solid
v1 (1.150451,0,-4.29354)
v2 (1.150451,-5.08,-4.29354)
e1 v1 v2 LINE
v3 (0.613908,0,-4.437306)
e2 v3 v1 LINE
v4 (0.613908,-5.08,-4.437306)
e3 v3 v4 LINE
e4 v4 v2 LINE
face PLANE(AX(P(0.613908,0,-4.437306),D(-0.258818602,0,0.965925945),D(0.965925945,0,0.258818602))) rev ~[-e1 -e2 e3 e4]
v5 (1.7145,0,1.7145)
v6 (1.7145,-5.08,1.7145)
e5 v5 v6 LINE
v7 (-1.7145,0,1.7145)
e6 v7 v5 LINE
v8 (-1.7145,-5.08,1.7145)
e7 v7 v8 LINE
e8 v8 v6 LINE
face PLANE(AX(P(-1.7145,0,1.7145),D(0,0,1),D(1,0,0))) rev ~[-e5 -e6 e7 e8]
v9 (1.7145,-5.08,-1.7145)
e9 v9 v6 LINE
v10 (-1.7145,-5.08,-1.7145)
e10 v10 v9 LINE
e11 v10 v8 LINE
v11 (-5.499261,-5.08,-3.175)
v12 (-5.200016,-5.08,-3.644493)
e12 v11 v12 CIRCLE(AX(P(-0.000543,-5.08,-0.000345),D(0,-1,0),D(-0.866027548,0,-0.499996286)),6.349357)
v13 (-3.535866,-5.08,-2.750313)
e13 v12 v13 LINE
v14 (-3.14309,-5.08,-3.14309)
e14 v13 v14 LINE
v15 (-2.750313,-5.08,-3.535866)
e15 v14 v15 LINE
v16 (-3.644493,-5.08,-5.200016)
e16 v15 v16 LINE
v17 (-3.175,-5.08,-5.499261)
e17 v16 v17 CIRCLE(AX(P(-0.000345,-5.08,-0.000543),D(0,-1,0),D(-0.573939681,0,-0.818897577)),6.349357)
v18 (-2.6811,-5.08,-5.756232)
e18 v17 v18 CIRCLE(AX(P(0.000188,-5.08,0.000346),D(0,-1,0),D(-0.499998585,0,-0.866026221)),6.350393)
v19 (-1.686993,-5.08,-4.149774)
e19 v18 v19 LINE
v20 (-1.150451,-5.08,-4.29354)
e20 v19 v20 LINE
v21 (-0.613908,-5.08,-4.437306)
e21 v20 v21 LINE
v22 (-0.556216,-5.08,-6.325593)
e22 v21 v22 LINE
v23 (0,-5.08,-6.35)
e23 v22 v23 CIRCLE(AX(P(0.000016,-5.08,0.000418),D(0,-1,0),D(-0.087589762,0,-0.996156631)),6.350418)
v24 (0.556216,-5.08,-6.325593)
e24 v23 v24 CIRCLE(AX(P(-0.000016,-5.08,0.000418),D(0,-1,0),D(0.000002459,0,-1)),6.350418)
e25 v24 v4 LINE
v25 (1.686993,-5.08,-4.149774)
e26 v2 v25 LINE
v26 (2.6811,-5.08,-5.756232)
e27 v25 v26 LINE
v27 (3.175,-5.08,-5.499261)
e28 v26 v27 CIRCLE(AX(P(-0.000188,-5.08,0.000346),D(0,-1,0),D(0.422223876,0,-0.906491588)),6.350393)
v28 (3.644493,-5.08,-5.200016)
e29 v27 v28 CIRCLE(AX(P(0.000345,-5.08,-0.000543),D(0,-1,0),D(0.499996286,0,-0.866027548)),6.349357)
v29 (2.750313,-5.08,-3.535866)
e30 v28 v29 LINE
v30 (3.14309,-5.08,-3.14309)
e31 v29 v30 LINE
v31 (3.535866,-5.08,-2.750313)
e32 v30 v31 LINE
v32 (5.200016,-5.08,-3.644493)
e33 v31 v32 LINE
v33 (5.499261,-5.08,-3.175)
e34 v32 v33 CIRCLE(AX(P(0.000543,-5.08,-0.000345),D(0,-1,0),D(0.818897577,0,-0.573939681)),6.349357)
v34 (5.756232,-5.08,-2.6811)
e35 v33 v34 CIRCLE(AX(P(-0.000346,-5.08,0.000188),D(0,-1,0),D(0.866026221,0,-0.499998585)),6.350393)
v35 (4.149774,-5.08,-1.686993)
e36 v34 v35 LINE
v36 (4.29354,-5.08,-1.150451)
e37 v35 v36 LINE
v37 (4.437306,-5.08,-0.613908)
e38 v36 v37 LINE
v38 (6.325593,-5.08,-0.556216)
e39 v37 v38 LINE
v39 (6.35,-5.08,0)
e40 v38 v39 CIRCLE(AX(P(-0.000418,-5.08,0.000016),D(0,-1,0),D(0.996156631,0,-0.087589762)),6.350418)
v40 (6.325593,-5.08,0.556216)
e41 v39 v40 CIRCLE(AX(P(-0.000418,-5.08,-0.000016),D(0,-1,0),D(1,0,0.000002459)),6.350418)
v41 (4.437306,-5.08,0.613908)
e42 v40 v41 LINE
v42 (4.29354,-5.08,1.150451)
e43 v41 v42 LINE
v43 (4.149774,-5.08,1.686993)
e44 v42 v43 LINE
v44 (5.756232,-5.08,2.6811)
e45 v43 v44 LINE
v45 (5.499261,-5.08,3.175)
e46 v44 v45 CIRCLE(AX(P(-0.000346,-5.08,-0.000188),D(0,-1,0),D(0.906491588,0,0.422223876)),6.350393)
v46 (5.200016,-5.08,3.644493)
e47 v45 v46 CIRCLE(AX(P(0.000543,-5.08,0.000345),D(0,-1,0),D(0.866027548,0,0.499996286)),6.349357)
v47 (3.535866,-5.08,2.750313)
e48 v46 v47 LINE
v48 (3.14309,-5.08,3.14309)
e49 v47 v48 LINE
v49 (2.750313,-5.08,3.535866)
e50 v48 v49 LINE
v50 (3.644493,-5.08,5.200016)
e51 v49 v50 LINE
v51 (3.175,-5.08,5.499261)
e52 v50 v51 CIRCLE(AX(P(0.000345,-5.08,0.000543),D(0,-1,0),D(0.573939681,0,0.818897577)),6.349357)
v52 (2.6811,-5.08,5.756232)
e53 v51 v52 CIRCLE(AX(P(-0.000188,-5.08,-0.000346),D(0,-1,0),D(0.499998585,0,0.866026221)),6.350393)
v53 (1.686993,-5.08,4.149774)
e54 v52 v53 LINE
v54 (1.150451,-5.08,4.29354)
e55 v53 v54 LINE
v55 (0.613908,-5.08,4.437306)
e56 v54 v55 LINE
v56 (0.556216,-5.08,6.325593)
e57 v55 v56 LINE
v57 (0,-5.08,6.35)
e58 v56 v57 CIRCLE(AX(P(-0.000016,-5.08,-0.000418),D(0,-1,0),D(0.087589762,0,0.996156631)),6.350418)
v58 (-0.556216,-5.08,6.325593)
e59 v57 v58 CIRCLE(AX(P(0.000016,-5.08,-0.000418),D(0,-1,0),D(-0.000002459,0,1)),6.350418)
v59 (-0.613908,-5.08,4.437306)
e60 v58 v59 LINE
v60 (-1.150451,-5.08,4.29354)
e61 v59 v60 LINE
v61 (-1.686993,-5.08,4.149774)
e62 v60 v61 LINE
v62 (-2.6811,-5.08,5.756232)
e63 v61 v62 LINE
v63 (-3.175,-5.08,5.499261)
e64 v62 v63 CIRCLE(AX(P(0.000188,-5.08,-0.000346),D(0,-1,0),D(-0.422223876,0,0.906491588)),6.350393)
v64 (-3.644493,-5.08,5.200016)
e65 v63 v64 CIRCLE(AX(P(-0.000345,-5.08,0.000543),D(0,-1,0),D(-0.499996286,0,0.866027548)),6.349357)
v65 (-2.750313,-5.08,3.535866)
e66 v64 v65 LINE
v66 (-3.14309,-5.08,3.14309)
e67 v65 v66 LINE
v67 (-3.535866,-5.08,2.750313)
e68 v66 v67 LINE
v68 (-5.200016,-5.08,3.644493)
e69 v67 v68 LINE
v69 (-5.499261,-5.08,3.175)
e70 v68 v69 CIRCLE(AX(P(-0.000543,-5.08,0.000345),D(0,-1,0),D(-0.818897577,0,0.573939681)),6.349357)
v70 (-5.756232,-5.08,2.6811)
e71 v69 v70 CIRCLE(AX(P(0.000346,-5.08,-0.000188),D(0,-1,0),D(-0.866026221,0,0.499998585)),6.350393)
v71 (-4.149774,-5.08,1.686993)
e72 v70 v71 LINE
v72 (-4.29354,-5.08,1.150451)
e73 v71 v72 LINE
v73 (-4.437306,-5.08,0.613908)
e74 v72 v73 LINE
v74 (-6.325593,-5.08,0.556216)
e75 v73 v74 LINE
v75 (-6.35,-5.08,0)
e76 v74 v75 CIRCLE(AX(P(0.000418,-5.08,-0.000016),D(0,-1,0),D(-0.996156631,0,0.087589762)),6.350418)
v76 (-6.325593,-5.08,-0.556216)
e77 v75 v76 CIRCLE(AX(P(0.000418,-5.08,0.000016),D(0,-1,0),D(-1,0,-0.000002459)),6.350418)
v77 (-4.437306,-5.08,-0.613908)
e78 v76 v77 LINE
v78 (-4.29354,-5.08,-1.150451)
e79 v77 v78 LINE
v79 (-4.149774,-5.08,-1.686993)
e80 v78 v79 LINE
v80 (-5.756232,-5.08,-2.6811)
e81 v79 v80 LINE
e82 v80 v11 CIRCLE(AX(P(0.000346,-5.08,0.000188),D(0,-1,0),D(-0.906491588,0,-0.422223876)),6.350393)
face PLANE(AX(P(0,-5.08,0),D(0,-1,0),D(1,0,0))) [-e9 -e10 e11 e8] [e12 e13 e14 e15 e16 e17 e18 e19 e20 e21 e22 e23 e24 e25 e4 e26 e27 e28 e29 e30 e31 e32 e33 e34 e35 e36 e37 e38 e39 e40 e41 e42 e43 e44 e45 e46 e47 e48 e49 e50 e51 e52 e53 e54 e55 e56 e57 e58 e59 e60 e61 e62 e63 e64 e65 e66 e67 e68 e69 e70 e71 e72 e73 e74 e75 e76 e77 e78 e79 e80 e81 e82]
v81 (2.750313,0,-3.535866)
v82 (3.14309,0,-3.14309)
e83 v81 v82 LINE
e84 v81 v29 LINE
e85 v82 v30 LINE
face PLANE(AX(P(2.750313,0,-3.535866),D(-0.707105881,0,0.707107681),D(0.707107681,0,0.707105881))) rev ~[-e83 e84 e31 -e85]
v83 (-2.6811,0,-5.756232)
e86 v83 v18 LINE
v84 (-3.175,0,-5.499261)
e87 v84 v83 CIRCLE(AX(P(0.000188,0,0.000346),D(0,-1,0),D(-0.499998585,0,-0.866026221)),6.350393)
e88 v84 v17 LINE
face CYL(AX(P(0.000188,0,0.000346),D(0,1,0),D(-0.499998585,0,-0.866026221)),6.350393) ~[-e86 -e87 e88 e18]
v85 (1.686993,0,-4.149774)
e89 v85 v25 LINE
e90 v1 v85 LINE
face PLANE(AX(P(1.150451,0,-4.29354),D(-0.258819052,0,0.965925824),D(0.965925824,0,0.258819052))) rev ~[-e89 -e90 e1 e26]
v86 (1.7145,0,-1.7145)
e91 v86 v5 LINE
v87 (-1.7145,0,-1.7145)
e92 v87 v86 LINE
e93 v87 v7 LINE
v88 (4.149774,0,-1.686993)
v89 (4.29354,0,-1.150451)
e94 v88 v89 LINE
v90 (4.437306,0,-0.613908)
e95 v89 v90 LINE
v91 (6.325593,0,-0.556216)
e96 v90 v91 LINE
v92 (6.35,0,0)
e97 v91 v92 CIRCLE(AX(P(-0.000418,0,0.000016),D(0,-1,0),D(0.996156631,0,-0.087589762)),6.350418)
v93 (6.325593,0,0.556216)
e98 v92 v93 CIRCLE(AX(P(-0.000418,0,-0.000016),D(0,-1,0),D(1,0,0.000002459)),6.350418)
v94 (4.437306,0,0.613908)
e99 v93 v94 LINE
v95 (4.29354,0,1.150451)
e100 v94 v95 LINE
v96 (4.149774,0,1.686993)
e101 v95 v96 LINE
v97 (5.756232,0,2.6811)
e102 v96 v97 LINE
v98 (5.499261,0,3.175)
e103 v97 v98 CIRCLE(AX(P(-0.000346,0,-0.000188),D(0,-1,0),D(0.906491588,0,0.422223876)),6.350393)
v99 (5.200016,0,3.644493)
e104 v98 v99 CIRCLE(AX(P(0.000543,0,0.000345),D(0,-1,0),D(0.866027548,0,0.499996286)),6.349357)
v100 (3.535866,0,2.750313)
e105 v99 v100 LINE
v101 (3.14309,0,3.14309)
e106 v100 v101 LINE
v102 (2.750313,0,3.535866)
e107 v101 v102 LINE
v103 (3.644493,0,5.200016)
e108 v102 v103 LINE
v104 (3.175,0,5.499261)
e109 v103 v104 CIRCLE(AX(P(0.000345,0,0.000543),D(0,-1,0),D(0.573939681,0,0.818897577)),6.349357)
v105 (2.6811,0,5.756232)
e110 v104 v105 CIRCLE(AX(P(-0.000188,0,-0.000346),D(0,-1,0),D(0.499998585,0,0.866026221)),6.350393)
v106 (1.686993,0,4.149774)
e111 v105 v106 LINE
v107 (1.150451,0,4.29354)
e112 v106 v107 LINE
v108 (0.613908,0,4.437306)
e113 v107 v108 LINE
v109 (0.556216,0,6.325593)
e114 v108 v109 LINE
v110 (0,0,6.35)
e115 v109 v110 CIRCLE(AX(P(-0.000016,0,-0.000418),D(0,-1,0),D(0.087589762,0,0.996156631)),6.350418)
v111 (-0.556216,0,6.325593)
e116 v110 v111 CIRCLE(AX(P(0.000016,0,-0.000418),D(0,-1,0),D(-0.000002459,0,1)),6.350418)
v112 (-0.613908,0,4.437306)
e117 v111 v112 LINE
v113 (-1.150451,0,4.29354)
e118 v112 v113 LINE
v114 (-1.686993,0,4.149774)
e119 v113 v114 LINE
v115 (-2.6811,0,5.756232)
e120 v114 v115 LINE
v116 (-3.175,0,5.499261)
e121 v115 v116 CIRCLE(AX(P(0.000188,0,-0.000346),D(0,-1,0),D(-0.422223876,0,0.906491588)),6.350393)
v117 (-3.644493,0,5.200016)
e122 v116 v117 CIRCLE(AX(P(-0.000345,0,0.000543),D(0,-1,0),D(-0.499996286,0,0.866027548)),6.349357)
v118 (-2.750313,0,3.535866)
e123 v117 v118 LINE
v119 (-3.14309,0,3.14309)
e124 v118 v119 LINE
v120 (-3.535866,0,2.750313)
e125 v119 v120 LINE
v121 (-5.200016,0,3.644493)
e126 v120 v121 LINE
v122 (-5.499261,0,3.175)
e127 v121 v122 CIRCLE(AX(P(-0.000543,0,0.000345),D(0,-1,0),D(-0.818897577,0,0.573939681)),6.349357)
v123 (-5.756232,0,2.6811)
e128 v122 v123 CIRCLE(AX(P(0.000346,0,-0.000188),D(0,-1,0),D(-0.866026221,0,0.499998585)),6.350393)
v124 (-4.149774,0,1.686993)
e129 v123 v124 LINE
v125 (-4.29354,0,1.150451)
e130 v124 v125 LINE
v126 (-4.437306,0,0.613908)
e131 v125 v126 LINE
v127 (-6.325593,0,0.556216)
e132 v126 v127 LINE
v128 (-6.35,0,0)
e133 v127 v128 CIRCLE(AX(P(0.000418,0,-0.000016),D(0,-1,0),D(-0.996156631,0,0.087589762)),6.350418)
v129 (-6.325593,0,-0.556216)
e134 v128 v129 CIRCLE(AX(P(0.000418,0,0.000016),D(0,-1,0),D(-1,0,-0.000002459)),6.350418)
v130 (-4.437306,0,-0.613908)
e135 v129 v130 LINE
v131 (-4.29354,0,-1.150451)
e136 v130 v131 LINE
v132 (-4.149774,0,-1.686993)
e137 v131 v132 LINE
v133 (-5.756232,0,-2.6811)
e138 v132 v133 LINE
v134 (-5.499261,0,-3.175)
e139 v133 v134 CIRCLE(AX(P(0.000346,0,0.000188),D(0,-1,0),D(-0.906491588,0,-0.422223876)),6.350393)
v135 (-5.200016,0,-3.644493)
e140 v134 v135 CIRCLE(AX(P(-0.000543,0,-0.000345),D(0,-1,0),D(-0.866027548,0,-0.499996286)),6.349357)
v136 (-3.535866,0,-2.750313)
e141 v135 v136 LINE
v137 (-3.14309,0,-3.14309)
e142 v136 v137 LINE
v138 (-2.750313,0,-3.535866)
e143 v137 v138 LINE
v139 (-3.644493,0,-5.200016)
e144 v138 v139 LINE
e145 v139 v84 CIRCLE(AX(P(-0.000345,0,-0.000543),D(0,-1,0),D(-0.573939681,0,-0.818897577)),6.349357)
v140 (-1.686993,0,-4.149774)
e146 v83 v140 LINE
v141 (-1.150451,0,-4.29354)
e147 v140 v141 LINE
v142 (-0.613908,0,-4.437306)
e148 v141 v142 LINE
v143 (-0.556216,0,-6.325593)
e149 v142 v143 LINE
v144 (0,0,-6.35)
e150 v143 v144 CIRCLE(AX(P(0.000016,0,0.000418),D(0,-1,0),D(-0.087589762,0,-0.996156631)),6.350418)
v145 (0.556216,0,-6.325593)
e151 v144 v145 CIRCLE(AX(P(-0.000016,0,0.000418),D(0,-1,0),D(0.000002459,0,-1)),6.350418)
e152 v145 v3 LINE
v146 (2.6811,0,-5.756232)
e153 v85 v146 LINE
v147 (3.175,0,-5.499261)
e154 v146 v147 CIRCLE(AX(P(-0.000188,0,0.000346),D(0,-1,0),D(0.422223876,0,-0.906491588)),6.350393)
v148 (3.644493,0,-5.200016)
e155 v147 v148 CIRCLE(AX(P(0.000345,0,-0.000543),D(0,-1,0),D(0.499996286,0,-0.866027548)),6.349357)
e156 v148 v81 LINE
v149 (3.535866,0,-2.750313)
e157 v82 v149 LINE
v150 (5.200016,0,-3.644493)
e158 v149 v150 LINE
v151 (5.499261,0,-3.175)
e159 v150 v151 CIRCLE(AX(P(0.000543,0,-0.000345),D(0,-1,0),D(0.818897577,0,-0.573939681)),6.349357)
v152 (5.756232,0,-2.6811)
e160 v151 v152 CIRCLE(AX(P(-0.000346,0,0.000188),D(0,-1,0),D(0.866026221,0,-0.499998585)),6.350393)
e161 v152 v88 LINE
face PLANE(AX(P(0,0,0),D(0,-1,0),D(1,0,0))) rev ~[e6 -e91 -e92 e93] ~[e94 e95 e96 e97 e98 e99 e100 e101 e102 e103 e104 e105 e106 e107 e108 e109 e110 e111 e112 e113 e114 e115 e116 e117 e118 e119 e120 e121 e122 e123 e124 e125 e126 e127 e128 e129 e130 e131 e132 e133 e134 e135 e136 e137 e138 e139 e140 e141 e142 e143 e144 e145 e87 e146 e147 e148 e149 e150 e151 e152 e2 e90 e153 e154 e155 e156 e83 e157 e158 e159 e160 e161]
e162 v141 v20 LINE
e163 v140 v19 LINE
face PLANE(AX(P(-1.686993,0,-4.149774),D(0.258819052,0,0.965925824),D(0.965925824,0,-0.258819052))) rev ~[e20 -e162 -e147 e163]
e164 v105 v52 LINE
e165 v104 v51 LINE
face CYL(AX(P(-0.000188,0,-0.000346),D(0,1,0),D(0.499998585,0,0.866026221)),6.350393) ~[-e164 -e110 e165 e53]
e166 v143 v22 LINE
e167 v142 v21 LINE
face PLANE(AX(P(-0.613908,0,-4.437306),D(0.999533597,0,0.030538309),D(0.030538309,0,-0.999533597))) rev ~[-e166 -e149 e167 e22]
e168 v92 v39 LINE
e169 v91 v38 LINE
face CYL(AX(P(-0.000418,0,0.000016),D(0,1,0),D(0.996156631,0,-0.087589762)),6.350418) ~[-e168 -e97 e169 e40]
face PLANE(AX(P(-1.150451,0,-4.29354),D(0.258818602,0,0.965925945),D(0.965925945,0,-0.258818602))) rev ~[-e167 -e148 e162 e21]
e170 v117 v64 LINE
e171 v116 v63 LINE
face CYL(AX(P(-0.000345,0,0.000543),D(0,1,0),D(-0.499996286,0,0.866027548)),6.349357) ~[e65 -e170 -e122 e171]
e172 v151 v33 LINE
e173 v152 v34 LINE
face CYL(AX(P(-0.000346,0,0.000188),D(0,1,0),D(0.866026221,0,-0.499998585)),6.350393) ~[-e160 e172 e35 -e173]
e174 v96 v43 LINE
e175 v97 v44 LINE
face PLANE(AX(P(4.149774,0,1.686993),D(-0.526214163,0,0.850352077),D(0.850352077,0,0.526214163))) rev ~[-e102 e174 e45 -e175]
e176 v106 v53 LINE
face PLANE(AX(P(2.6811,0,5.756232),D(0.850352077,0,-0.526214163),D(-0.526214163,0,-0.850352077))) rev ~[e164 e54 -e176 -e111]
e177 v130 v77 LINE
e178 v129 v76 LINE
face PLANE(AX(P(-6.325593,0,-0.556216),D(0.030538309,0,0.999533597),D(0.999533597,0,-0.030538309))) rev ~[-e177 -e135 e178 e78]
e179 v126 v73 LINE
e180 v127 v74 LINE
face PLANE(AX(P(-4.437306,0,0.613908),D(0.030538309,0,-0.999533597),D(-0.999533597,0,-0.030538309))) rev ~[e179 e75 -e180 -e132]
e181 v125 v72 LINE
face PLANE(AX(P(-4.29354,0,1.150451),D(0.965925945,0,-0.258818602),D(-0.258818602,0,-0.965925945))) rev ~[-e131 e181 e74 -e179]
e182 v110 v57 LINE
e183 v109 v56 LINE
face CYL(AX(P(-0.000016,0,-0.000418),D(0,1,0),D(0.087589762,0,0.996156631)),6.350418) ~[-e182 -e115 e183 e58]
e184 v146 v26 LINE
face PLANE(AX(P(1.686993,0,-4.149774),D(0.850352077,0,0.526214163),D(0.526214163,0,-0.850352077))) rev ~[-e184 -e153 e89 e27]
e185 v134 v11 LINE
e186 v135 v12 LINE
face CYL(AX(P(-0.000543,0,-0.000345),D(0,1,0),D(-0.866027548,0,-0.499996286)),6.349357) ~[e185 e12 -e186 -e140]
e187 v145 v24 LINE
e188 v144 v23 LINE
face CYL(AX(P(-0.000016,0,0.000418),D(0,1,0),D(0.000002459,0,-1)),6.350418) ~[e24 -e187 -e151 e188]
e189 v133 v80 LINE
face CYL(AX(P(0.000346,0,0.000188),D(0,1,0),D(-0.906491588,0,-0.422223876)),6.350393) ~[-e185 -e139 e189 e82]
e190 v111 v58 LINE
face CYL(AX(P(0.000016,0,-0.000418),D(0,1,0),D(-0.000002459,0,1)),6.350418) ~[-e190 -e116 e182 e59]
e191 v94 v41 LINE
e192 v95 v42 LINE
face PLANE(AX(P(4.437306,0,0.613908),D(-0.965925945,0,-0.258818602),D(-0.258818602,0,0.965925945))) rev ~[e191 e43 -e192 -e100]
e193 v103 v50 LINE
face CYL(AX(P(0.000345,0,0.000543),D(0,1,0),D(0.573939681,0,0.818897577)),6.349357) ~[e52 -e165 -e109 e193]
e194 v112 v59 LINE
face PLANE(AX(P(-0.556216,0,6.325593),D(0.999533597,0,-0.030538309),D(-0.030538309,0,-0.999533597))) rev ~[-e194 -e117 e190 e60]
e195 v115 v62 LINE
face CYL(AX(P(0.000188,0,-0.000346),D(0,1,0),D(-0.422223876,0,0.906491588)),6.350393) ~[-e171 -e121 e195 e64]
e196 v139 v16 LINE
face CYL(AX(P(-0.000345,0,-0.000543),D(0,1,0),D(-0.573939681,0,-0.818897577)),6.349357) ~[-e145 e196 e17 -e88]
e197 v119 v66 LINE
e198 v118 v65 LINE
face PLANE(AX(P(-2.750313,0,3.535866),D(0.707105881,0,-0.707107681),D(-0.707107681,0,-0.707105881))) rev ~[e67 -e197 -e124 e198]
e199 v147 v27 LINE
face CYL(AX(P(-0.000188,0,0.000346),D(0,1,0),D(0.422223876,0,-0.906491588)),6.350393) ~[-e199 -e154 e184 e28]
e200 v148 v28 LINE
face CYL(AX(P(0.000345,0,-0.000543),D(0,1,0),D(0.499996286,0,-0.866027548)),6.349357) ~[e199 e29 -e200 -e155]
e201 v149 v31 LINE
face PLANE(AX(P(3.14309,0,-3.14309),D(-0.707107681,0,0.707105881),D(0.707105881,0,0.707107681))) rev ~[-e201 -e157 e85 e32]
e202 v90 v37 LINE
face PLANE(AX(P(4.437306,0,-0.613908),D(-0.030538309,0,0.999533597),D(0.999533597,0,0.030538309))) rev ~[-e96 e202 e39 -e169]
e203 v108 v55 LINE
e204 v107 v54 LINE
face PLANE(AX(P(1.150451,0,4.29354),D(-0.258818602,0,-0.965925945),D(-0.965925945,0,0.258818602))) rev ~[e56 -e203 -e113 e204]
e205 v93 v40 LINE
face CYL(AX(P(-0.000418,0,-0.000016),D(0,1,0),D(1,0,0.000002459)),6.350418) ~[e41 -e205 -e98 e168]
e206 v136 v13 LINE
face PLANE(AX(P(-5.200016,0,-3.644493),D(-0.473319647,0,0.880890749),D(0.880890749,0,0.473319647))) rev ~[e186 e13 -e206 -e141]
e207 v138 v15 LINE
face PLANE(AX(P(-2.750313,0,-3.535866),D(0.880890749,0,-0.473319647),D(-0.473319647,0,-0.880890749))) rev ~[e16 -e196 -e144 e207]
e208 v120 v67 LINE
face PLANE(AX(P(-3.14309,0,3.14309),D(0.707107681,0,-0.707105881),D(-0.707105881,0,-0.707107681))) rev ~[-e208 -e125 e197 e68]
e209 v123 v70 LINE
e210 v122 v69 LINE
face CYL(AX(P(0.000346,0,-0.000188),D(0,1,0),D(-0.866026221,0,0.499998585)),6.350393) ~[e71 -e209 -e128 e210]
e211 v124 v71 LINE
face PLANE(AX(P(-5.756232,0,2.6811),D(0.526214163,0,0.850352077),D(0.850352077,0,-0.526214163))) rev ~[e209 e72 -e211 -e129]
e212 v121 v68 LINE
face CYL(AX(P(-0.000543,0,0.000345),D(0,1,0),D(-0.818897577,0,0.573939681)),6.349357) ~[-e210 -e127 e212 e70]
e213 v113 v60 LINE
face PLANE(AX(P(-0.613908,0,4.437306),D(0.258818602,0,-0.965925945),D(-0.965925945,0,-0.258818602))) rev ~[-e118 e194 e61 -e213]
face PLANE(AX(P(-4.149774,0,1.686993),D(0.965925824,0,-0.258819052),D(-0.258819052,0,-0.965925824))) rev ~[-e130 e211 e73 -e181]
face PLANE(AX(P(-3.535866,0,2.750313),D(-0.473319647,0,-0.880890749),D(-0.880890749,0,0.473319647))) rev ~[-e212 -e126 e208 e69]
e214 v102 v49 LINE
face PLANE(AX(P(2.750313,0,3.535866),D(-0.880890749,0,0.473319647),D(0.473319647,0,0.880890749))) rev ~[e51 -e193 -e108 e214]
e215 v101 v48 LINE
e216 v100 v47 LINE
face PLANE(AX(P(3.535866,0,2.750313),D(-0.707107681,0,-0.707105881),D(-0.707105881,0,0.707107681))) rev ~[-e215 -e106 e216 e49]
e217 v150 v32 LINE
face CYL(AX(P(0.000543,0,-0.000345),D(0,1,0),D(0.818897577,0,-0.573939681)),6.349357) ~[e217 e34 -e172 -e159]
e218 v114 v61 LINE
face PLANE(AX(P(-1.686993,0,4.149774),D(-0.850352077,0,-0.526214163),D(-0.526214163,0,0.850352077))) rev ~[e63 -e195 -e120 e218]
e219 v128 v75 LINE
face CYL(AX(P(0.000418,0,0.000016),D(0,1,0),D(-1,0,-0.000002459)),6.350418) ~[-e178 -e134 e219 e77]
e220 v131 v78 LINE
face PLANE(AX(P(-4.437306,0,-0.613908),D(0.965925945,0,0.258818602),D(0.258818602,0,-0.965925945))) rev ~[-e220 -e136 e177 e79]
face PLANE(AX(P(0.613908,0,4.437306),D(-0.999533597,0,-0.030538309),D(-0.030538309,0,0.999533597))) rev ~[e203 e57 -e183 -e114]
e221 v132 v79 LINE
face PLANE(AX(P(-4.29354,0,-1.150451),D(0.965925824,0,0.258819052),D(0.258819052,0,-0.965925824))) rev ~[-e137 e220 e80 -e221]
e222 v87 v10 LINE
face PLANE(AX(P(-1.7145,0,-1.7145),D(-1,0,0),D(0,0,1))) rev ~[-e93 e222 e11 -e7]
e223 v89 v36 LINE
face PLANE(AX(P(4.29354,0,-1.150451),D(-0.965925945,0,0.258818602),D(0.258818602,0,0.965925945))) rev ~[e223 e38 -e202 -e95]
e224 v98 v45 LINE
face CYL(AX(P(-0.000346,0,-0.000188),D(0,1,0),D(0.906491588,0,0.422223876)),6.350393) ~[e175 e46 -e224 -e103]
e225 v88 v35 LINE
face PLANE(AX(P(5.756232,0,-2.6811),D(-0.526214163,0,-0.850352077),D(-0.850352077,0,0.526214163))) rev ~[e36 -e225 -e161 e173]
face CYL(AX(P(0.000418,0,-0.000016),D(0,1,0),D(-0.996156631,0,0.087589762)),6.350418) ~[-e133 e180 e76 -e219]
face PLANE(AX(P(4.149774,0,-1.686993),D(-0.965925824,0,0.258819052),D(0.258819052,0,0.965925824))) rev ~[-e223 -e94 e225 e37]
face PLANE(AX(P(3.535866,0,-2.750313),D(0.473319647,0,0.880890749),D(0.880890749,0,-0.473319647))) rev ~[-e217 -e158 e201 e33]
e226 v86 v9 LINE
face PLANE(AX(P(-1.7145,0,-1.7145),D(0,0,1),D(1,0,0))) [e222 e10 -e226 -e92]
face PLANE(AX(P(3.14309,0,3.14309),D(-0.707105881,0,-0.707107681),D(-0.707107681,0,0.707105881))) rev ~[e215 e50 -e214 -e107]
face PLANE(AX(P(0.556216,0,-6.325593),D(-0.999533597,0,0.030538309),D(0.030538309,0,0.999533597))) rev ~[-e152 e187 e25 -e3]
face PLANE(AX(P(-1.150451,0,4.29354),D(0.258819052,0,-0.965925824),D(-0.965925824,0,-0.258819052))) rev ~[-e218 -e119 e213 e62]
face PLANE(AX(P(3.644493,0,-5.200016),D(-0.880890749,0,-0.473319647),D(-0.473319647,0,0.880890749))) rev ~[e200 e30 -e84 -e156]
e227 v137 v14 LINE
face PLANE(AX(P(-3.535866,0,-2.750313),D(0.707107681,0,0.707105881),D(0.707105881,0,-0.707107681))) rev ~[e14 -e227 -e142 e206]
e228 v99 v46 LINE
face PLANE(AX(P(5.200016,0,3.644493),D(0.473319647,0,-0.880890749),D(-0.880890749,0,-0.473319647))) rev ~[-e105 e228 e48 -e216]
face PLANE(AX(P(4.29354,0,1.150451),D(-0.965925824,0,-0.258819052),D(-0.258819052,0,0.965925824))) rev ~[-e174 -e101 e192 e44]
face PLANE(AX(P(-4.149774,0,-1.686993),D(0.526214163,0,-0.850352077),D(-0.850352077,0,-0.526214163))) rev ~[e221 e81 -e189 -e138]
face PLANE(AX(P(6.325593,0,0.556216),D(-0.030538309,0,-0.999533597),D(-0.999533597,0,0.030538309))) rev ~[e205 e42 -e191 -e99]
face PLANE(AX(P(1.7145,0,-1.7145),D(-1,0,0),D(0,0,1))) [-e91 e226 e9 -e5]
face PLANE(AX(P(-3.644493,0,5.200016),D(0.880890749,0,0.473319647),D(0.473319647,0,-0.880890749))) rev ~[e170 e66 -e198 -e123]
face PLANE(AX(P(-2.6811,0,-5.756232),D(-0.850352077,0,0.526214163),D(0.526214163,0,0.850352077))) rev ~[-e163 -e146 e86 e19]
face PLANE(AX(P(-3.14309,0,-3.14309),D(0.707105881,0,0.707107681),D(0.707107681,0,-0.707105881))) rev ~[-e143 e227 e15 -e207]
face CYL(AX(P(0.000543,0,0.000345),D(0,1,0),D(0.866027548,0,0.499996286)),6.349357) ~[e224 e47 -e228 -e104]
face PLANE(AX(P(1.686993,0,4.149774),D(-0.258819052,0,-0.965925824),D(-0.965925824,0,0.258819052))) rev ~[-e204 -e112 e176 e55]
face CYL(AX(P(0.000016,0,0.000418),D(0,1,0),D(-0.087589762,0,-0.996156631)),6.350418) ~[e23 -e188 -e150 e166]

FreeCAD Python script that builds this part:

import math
import FreeCAD as App
import Part
import Sketcher
Q = App.Units.Quantity


def add_polygon(sketch, points):
    """Adds a closed chain of lines whose ends are joined by coincident constraints."""
    first, n = sketch.GeometryCount, len(points)
    for a, b in zip(points, points[1:] + points[:1]):
        sketch.addGeometry(Part.LineSegment(App.Vector(*a, 0), App.Vector(*b, 0)), False)
    for i in range(n):
        sketch.addConstraint(Sketcher.Constraint("Coincident", first + i, 2, first + (i + 1) % n, 1))

doc = App.newDocument("Part")
params = doc.addObject("Spreadsheet::Sheet", "Params")
for row, (alias, value) in enumerate([
    ("sketch1_width", "0.135 in"),
    ("pad1_length", "0.2 in"),
], start=1):
    params.set(f"A{row}", alias)
    params.set(f"B{row}", "=" + value)
    params.setAlias(f"B{row}", alias)

body = doc.addObject("PartDesign::Body", "Body")

# Sketch on XZ plane
sketch1 = body.newObject("Sketcher::SketchObject", "Sketch")
sketch1.AttachmentSupport = (doc.getObject("XZ_Plane"), [""])
sketch1.MapMode = "FlatFace"
sketch1.addGeometry(Part.ArcOfCircle(Part.Circle(App.Vector(-0.000418, 0.000016, 0), App.Vector(0, 0, 1), 6.350418), math.radians(-5.024963), math.radians(-0.000141)), False)  # 0
sketch1.addGeometry(Part.ArcOfCircle(Part.Circle(App.Vector(-0.000418, -0.000016, 0), App.Vector(0, 0, 1), 6.350418), math.radians(0.000141), math.radians(5.024963)), False)  # 1
sketch1.addGeometry(Part.LineSegment(App.Vector(6.325593, 0.556216, 0), App.Vector(4.437306, 0.613908, 0)), False)  # 2
sketch1.addGeometry(Part.LineSegment(App.Vector(4.437306, 0.613908, 0), App.Vector(4.29354, 1.150451, 0)), False)  # 3
sketch1.addGeometry(Part.LineSegment(App.Vector(4.29354, 1.150451, 0), App.Vector(4.149774, 1.686993, 0)), False)  # 4
sketch1.addGeometry(Part.LineSegment(App.Vector(4.149774, 1.686993, 0), App.Vector(5.756232, 2.6811, 0)), False)  # 5
sketch1.addGeometry(Part.ArcOfCircle(Part.Circle(App.Vector(-0.000346, -0.000188, 0), App.Vector(0, 0, 1), 6.350393), math.radians(24.97507), math.radians(29.999906)), False)  # 6
sketch1.addGeometry(Part.ArcOfCircle(Part.Circle(App.Vector(0.000543, 0.000345, 0), App.Vector(0, 0, 1), 6.349357), math.radians(29.999754), math.radians(35.025411)), False)  # 7
sketch1.addGeometry(Part.LineSegment(App.Vector(5.200016, 3.644493, 0), App.Vector(3.535866, 2.750313, 0)), False)  # 8
sketch1.addGeometry(Part.LineSegment(App.Vector(3.535866, 2.750313, 0), App.Vector(3.14309, 3.14309, 0)), False)  # 9
sketch1.addGeometry(Part.LineSegment(App.Vector(3.14309, 3.14309, 0), App.Vector(2.750313, 3.535866, 0)), False)  # 10
sketch1.addGeometry(Part.LineSegment(App.Vector(2.750313, 3.535866, 0), App.Vector(3.644493, 5.200016, 0)), False)  # 11
sketch1.addGeometry(Part.ArcOfCircle(Part.Circle(App.Vector(0.000345, 0.000543, 0), App.Vector(0, 0, 1), 6.349357), math.radians(54.974589), math.radians(60.000246)), False)  # 12
sketch1.addGeometry(Part.ArcOfCircle(Part.Circle(App.Vector(-0.000188, -0.000346, 0), App.Vector(0, 0, 1), 6.350393), math.radians(60.000094), math.radians(65.02493)), False)  # 13
sketch1.addGeometry(Part.LineSegment(App.Vector(2.6811, 5.756232, 0), App.Vector(1.686993, 4.149774, 0)), False)  # 14
sketch1.addGeometry(Part.LineSegment(App.Vector(1.686993, 4.149774, 0), App.Vector(1.150451, 4.29354, 0)), False)  # 15
sketch1.addGeometry(Part.LineSegment(App.Vector(1.150451, 4.29354, 0), App.Vector(0.613908, 4.437306, 0)), False)  # 16
sketch1.addGeometry(Part.LineSegment(App.Vector(0.613908, 4.437306, 0), App.Vector(0.556216, 6.325593, 0)), False)  # 17
sketch1.addGeometry(Part.ArcOfCircle(Part.Circle(App.Vector(-0.000016, -0.000418, 0), App.Vector(0, 0, 1), 6.350418), math.radians(84.975037), math.radians(89.999859)), False)  # 18
sketch1.addGeometry(Part.ArcOfCircle(Part.Circle(App.Vector(0.000016, -0.000418, 0), App.Vector(0, 0, 1), 6.350418), math.radians(90.000141), math.radians(95.024963)), False)  # 19
sketch1.addGeometry(Part.LineSegment(App.Vector(-0.556216, 6.325593, 0), App.Vector(-0.613908, 4.437306, 0)), False)  # 20
sketch1.addGeometry(Part.LineSegment(App.Vector(-0.613908, 4.437306, 0), App.Vector(-1.150451, 4.29354, 0)), False)  # 21
sketch1.addGeometry(Part.LineSegment(App.Vector(-1.150451, 4.29354, 0), App.Vector(-1.686993, 4.149774, 0)), False)  # 22
sketch1.addGeometry(Part.LineSegment(App.Vector(-1.686993, 4.149774, 0), App.Vector(-2.6811, 5.756232, 0)), False)  # 23
sketch1.addGeometry(Part.ArcOfCircle(Part.Circle(App.Vector(0.000188, -0.000346, 0), App.Vector(0, 0, 1), 6.350393), math.radians(114.97507), math.radians(119.999906)), False)  # 24
sketch1.addGeometry(Part.ArcOfCircle(Part.Circle(App.Vector(-0.000345, 0.000543, 0), App.Vector(0, 0, 1), 6.349357), math.radians(119.999754), math.radians(125.025411)), False)  # 25
sketch1.addGeometry(Part.LineSegment(App.Vector(-3.644493, 5.200016, 0), App.Vector(-2.750313, 3.535866, 0)), False)  # 26
sketch1.addGeometry(Part.LineSegment(App.Vector(-2.750313, 3.535866, 0), App.Vector(-3.14309, 3.14309, 0)), False)  # 27
sketch1.addGeometry(Part.LineSegment(App.Vector(-3.14309, 3.14309, 0), App.Vector(-3.535866, 2.750313, 0)), False)  # 28
sketch1.addGeometry(Part.LineSegment(App.Vector(-3.535866, 2.750313, 0), App.Vector(-5.200016, 3.644493, 0)), False)  # 29
sketch1.addGeometry(Part.ArcOfCircle(Part.Circle(App.Vector(-0.000543, 0.000345, 0), App.Vector(0, 0, 1), 6.349357), math.radians(144.974589), math.radians(150.000246)), False)  # 30
sketch1.addGeometry(Part.ArcOfCircle(Part.Circle(App.Vector(0.000346, -0.000188, 0), App.Vector(0, 0, 1), 6.350393), math.radians(150.000094), math.radians(155.02493)), False)  # 31
sketch1.addGeometry(Part.LineSegment(App.Vector(-5.756232, 2.6811, 0), App.Vector(-4.149774, 1.686993, 0)), False)  # 32
sketch1.addGeometry(Part.LineSegment(App.Vector(-4.149774, 1.686993, 0), App.Vector(-4.29354, 1.150451, 0)), False)  # 33
sketch1.addGeometry(Part.LineSegment(App.Vector(-4.29354, 1.150451, 0), App.Vector(-4.437306, 0.613908, 0)), False)  # 34
sketch1.addGeometry(Part.LineSegment(App.Vector(-4.437306, 0.613908, 0), App.Vector(-6.325593, 0.556216, 0)), False)  # 35
sketch1.addGeometry(Part.ArcOfCircle(Part.Circle(App.Vector(0.000418, -0.000016, 0), App.Vector(0, 0, 1), 6.350418), math.radians(174.975037), math.radians(179.999859)), False)  # 36
sketch1.addGeometry(Part.ArcOfCircle(Part.Circle(App.Vector(0.000418, 0.000016, 0), App.Vector(0, 0, 1), 6.350418), math.radians(-179.999859), math.radians(-174.975037)), False)  # 37
sketch1.addGeometry(Part.LineSegment(App.Vector(-6.325593, -0.556216, 0), App.Vector(-4.437306, -0.613908, 0)), False)  # 38
sketch1.addGeometry(Part.LineSegment(App.Vector(-4.437306, -0.613908, 0), App.Vector(-4.29354, -1.150451, 0)), False)  # 39
sketch1.addGeometry(Part.LineSegment(App.Vector(-4.29354, -1.150451, 0), App.Vector(-4.149774, -1.686993, 0)), False)  # 40
sketch1.addGeometry(Part.LineSegment(App.Vector(-4.149774, -1.686993, 0), App.Vector(-5.756232, -2.6811, 0)), False)  # 41
sketch1.addGeometry(Part.ArcOfCircle(Part.Circle(App.Vector(0.000346, 0.000188, 0), App.Vector(0, 0, 1), 6.350393), math.radians(-155.02493), math.radians(-150.000094)), False)  # 42
sketch1.addGeometry(Part.ArcOfCircle(Part.Circle(App.Vector(-0.000543, -0.000345, 0), App.Vector(0, 0, 1), 6.349357), math.radians(-150.000246), math.radians(-144.974589)), False)  # 43
sketch1.addGeometry(Part.LineSegment(App.Vector(-5.200016, -3.644493, 0), App.Vector(-3.535866, -2.750313, 0)), False)  # 44
sketch1.addGeometry(Part.LineSegment(App.Vector(-3.535866, -2.750313, 0), App.Vector(-3.14309, -3.14309, 0)), False)  # 45
sketch1.addGeometry(Part.LineSegment(App.Vector(-3.14309, -3.14309, 0), App.Vector(-2.750313, -3.535866, 0)), False)  # 46
sketch1.addGeometry(Part.LineSegment(App.Vector(-2.750313, -3.535866, 0), App.Vector(-3.644493, -5.200016, 0)), False)  # 47
sketch1.addGeometry(Part.ArcOfCircle(Part.Circle(App.Vector(-0.000345, -0.000543, 0), App.Vector(0, 0, 1), 6.349357), math.radians(-125.025411), math.radians(-119.999754)), False)  # 48
sketch1.addGeometry(Part.ArcOfCircle(Part.Circle(App.Vector(0.000188, 0.000346, 0), App.Vector(0, 0, 1), 6.350393), math.radians(-119.999906), math.radians(-114.97507)), False)  # 49
sketch1.addGeometry(Part.LineSegment(App.Vector(-2.6811, -5.756232, 0), App.Vector(-1.686993, -4.149774, 0)), False)  # 50
sketch1.addGeometry(Part.LineSegment(App.Vector(-1.686993, -4.149774, 0), App.Vector(-1.150451, -4.29354, 0)), False)  # 51
sketch1.addGeometry(Part.LineSegment(App.Vector(-1.150451, -4.29354, 0), App.Vector(-0.613908, -4.437306, 0)), False)  # 52
sketch1.addGeometry(Part.LineSegment(App.Vector(-0.613908, -4.437306, 0), App.Vector(-0.556216, -6.325593, 0)), False)  # 53
sketch1.addGeometry(Part.ArcOfCircle(Part.Circle(App.Vector(0.000016, 0.000418, 0), App.Vector(0, 0, 1), 6.350418), math.radians(-95.024963), math.radians(-90.000141)), False)  # 54
sketch1.addGeometry(Part.ArcOfCircle(Part.Circle(App.Vector(-0.000016, 0.000418, 0), App.Vector(0, 0, 1), 6.350418), math.radians(-89.999859), math.radians(-84.975037)), False)  # 55
sketch1.addGeometry(Part.LineSegment(App.Vector(0.556216, -6.325593, 0), App.Vector(0.613908, -4.437306, 0)), False)  # 56
sketch1.addGeometry(Part.LineSegment(App.Vector(0.613908, -4.437306, 0), App.Vector(1.150451, -4.29354, 0)), False)  # 57
sketch1.addGeometry(Part.LineSegment(App.Vector(1.150451, -4.29354, 0), App.Vector(1.686993, -4.149774, 0)), False)  # 58
sketch1.addGeometry(Part.LineSegment(App.Vector(1.686993, -4.149774, 0), App.Vector(2.6811, -5.756232, 0)), False)  # 59
sketch1.addGeometry(Part.ArcOfCircle(Part.Circle(App.Vector(-0.000188, 0.000346, 0), App.Vector(0, 0, 1), 6.350393), math.radians(-65.02493), math.radians(-60.000094)), False)  # 60
sketch1.addGeometry(Part.ArcOfCircle(Part.Circle(App.Vector(0.000345, -0.000543, 0), App.Vector(0, 0, 1), 6.349357), math.radians(-60.000246), math.radians(-54.974589)), False)  # 61
sketch1.addGeometry(Part.LineSegment(App.Vector(3.644493, -5.200016, 0), App.Vector(2.750313, -3.535866, 0)), False)  # 62
sketch1.addGeometry(Part.LineSegment(App.Vector(2.750313, -3.535866, 0), App.Vector(3.14309, -3.14309, 0)), False)  # 63
sketch1.addGeometry(Part.LineSegment(App.Vector(3.14309, -3.14309, 0), App.Vector(3.535866, -2.750313, 0)), False)  # 64
sketch1.addGeometry(Part.LineSegment(App.Vector(3.535866, -2.750313, 0), App.Vector(5.200016, -3.644493, 0)), False)  # 65
sketch1.addGeometry(Part.ArcOfCircle(Part.Circle(App.Vector(0.000543, -0.000345, 0), App.Vector(0, 0, 1), 6.349357), math.radians(-35.025411), math.radians(-29.999754)), False)  # 66
sketch1.addGeometry(Part.ArcOfCircle(Part.Circle(App.Vector(-0.000346, 0.000188, 0), App.Vector(0, 0, 1), 6.350393), math.radians(-29.999906), math.radians(-24.97507)), False)  # 67
sketch1.addGeometry(Part.LineSegment(App.Vector(5.756232, -2.6811, 0), App.Vector(4.149774, -1.686993, 0)), False)  # 68
sketch1.addGeometry(Part.LineSegment(App.Vector(4.149774, -1.686993, 0), App.Vector(4.29354, -1.150451, 0)), False)  # 69
sketch1.addGeometry(Part.LineSegment(App.Vector(4.29354, -1.150451, 0), App.Vector(4.437306, -0.613908, 0)), False)  # 70
sketch1.addGeometry(Part.LineSegment(App.Vector(4.437306, -0.613908, 0), App.Vector(6.325593, -0.556216, 0)), False)  # 71
add_polygon(sketch1, [(1.7145, -1.7145), (-1.7145, -1.7145), (-1.7145, 1.7145), (1.7145, 1.7145)])  # lines 72-75
sketch1.addConstraint(Sketcher.Constraint("Coincident", 0, 2, 1, 1))
sketch1.addConstraint(Sketcher.Constraint("Coincident", 1, 2, 2, 1))
sketch1.addConstraint(Sketcher.Constraint("Coincident", 2, 2, 3, 1))
sketch1.addConstraint(Sketcher.Constraint("Coincident", 3, 2, 4, 1))
sketch1.addConstraint(Sketcher.Constraint("Coincident", 4, 2, 5, 1))
sketch1.addConstraint(Sketcher.Constraint("Coincident", 5, 2, 6, 1))
sketch1.addConstraint(Sketcher.Constraint("Coincident", 6, 2, 7, 1))
sketch1.addConstraint(Sketcher.Constraint("Coincident", 7, 2, 8, 1))
sketch1.addConstraint(Sketcher.Constraint("Coincident", 8, 2, 9, 1))
sketch1.addConstraint(Sketcher.Constraint("Coincident", 9, 2, 10, 1))
sketch1.addConstraint(Sketcher.Constraint("Coincident", 10, 2, 11, 1))
sketch1.addConstraint(Sketcher.Constraint("Coincident", 11, 2, 12, 1))
sketch1.addConstraint(Sketcher.Constraint("Coincident", 12, 2, 13, 1))
sketch1.addConstraint(Sketcher.Constraint("Coincident", 13, 2, 14, 1))
sketch1.addConstraint(Sketcher.Constraint("Coincident", 14, 2, 15, 1))
sketch1.addConstraint(Sketcher.Constraint("Coincident", 15, 2, 16, 1))
sketch1.addConstraint(Sketcher.Constraint("Coincident", 16, 2, 17, 1))
sketch1.addConstraint(Sketcher.Constraint("Coincident", 17, 2, 18, 1))
sketch1.addConstraint(Sketcher.Constraint("Coincident", 18, 2, 19, 1))
sketch1.addConstraint(Sketcher.Constraint("Coincident", 19, 2, 20, 1))
sketch1.addConstraint(Sketcher.Constraint("Coincident", 20, 2, 21, 1))
sketch1.addConstraint(Sketcher.Constraint("Coincident", 21, 2, 22, 1))
sketch1.addConstraint(Sketcher.Constraint("Coincident", 22, 2, 23, 1))
sketch1.addConstraint(Sketcher.Constraint("Coincident", 23, 2, 24, 1))
sketch1.addConstraint(Sketcher.Constraint("Coincident", 24, 2, 25, 1))
sketch1.addConstraint(Sketcher.Constraint("Coincident", 25, 2, 26, 1))
sketch1.addConstraint(Sketcher.Constraint("Coincident", 26, 2, 27, 1))
sketch1.addConstraint(Sketcher.Constraint("Coincident", 27, 2, 28, 1))
sketch1.addConstraint(Sketcher.Constraint("Coincident", 28, 2, 29, 1))
sketch1.addConstraint(Sketcher.Constraint("Coincident", 29, 2, 30, 1))
sketch1.addConstraint(Sketcher.Constraint("Coincident", 30, 2, 31, 1))
sketch1.addConstraint(Sketcher.Constraint("Coincident", 31, 2, 32, 1))
sketch1.addConstraint(Sketcher.Constraint("Coincident", 32, 2, 33, 1))
sketch1.addConstraint(Sketcher.Constraint("Coincident", 33, 2, 34, 1))
sketch1.addConstraint(Sketcher.Constraint("Coincident", 34, 2, 35, 1))
sketch1.addConstraint(Sketcher.Constraint("Coincident", 35, 2, 36, 1))
sketch1.addConstraint(Sketcher.Constraint("Coincident", 36, 2, 37, 1))
sketch1.addConstraint(Sketcher.Constraint("Coincident", 37, 2, 38, 1))
sketch1.addConstraint(Sketcher.Constraint("Coincident", 38, 2, 39, 1))
sketch1.addConstraint(Sketcher.Constraint("Coincident", 39, 2, 40, 1))
sketch1.addConstraint(Sketcher.Constraint("Coincident", 40, 2, 41, 1))
sketch1.addConstraint(Sketcher.Constraint("Coincident", 41, 2, 42, 1))
sketch1.addConstraint(Sketcher.Constraint("Coincident", 42, 2, 43, 1))
sketch1.addConstraint(Sketcher.Constraint("Coincident", 43, 2, 44, 1))
sketch1.addConstraint(Sketcher.Constraint("Coincident", 44, 2, 45, 1))
sketch1.addConstraint(Sketcher.Constraint("Coincident", 45, 2, 46, 1))
sketch1.addConstraint(Sketcher.Constraint("Coincident", 46, 2, 47, 1))
sketch1.addConstraint(Sketcher.Constraint("Coincident", 47, 2, 48, 1))
sketch1.addConstraint(Sketcher.Constraint("Coincident", 48, 2, 49, 1))
sketch1.addConstraint(Sketcher.Constraint("Coincident", 49, 2, 50, 1))
sketch1.addConstraint(Sketcher.Constraint("Coincident", 50, 2, 51, 1))
sketch1.addConstraint(Sketcher.Constraint("Coincident", 51, 2, 52, 1))
sketch1.addConstraint(Sketcher.Constraint("Coincident", 52, 2, 53, 1))
sketch1.addConstraint(Sketcher.Constraint("Coincident", 53, 2, 54, 1))
sketch1.addConstraint(Sketcher.Constraint("Coincident", 54, 2, 55, 1))
sketch1.addConstraint(Sketcher.Constraint("Coincident", 55, 2, 56, 1))
sketch1.addConstraint(Sketcher.Constraint("Coincident", 56, 2, 57, 1))
sketch1.addConstraint(Sketcher.Constraint("Coincident", 57, 2, 58, 1))
sketch1.addConstraint(Sketcher.Constraint("Coincident", 58, 2, 59, 1))
sketch1.addConstraint(Sketcher.Constraint("Coincident", 59, 2, 60, 1))
sketch1.addConstraint(Sketcher.Constraint("Coincident", 60, 2, 61, 1))
sketch1.addConstraint(Sketcher.Constraint("Coincident", 61, 2, 62, 1))
sketch1.addConstraint(Sketcher.Constraint("Coincident", 62, 2, 63, 1))
sketch1.addConstraint(Sketcher.Constraint("Coincident", 63, 2, 64, 1))
sketch1.addConstraint(Sketcher.Constraint("Coincident", 64, 2, 65, 1))
sketch1.addConstraint(Sketcher.Constraint("Coincident", 65, 2, 66, 1))
sketch1.addConstraint(Sketcher.Constraint("Coincident", 66, 2, 67, 1))
sketch1.addConstraint(Sketcher.Constraint("Coincident", 67, 2, 68, 1))
sketch1.addConstraint(Sketcher.Constraint("Coincident", 68, 2, 69, 1))
sketch1.addConstraint(Sketcher.Constraint("Coincident", 69, 2, 70, 1))
sketch1.addConstraint(Sketcher.Constraint("Coincident", 70, 2, 71, 1))
sketch1.addConstraint(Sketcher.Constraint("Coincident", 71, 2, 0, 1))
sketch1.addConstraint(Sketcher.Constraint("Horizontal", 72))
sketch1.addConstraint(Sketcher.Constraint("Vertical", 73))
sketch1.addConstraint(Sketcher.Constraint("Horizontal", 74))
sketch1.addConstraint(Sketcher.Constraint("Vertical", 75))
sketch1.addConstraint(Sketcher.Constraint("Equal", 0, 1))
sketch1.addConstraint(Sketcher.Constraint("Equal", 7, 12))
sketch1.addConstraint(Sketcher.Constraint("Equal", 6, 13))
sketch1.addConstraint(Sketcher.Constraint("Equal", 1, 18))
sketch1.addConstraint(Sketcher.Constraint("Equal", 18, 19))
sketch1.addConstraint(Sketcher.Constraint("Equal", 13, 24))
sketch1.addConstraint(Sketcher.Constraint("Equal", 12, 25))
sketch1.addConstraint(Sketcher.Constraint("Equal", 25, 30))
sketch1.addConstraint(Sketcher.Constraint("Equal", 24, 31))
sketch1.addConstraint(Sketcher.Constraint("Equal", 19, 36))
sketch1.addConstraint(Sketcher.Constraint("Equal", 36, 37))
sketch1.addConstraint(Sketcher.Constraint("Equal", 31, 42))
sketch1.addConstraint(Sketcher.Constraint("Equal", 30, 43))
sketch1.addConstraint(Sketcher.Constraint("Equal", 43, 48))
sketch1.addConstraint(Sketcher.Constraint("Equal", 42, 49))
sketch1.addConstraint(Sketcher.Constraint("Equal", 37, 54))
sketch1.addConstraint(Sketcher.Constraint("Equal", 54, 55))
sketch1.addConstraint(Sketcher.Constraint("Equal", 49, 60))
sketch1.addConstraint(Sketcher.Constraint("Equal", 48, 61))
sketch1.addConstraint(Sketcher.Constraint("Equal", 61, 66))
sketch1.addConstraint(Sketcher.Constraint("Equal", 60, 67))
sketch1.addConstraint(Sketcher.Constraint("Symmetric", 0, 3, 36, 3, -1, 1))
sketch1.addConstraint(Sketcher.Constraint("Symmetric", 6, 3, 42, 3, -1, 1))
sketch1.addConstraint(Sketcher.Constraint("Symmetric", 12, 3, 48, 3, -1, 1))
sketch1.addConstraint(Sketcher.Constraint("Symmetric", 18, 3, 54, 3, -1, 1))
sketch1.addConstraint(Sketcher.Constraint("Symmetric", 24, 3, 60, 3, -1, 1))
sketch1.addConstraint(Sketcher.Constraint("Symmetric", 30, 3, 66, 3, -1, 1))
sketch1.addConstraint(Sketcher.Constraint("Symmetric", 1, 2, 37, 2, -1, 1))
sketch1.addConstraint(Sketcher.Constraint("Symmetric", 2, 2, 38, 2, -1, 1))
sketch1.addConstraint(Sketcher.Constraint("Symmetric", 3, 2, 39, 2, -1, 1))
sketch1.addConstraint(Sketcher.Constraint("Symmetric", 4, 2, 40, 2, -1, 1))
sketch1.addConstraint(Sketcher.Constraint("Symmetric", 7, 2, 43, 2, -1, 1))
sketch1.addConstraint(Sketcher.Constraint("Symmetric", 8, 2, 44, 2, -1, 1))
sketch1.addConstraint(Sketcher.Constraint("Symmetric", 9, 2, 45, 2, -1, 1))
sketch1.addConstraint(Sketcher.Constraint("Symmetric", 10, 2, 46, 2, -1, 1))
sketch1.addConstraint(Sketcher.Constraint("Symmetric", 13, 2, 49, 2, -1, 1))
sketch1.addConstraint(Sketcher.Constraint("Symmetric", 14, 2, 50, 2, -1, 1))
sketch1.addConstraint(Sketcher.Constraint("Symmetric", 15, 2, 51, 2, -1, 1))
sketch1.addConstraint(Sketcher.Constraint("Symmetric", 16, 2, 52, 2, -1, 1))
sketch1.addConstraint(Sketcher.Constraint("Symmetric", 19, 2, 55, 2, -1, 1))
sketch1.addConstraint(Sketcher.Constraint("Symmetric", 20, 2, 56, 2, -1, 1))
sketch1.addConstraint(Sketcher.Constraint("Symmetric", 21, 2, 57, 2, -1, 1))
sketch1.addConstraint(Sketcher.Constraint("Symmetric", 22, 2, 58, 2, -1, 1))
sketch1.addConstraint(Sketcher.Constraint("Symmetric", 25, 2, 61, 2, -1, 1))
sketch1.addConstraint(Sketcher.Constraint("Symmetric", 26, 2, 62, 2, -1, 1))
sketch1.addConstraint(Sketcher.Constraint("Symmetric", 27, 2, 63, 2, -1, 1))
sketch1.addConstraint(Sketcher.Constraint("Symmetric", 28, 2, 64, 2, -1, 1))
sketch1.addConstraint(Sketcher.Constraint("Symmetric", 31, 2, 67, 2, -1, 1))
sketch1.addConstraint(Sketcher.Constraint("Symmetric", 32, 2, 68, 2, -1, 1))
sketch1.addConstraint(Sketcher.Constraint("Symmetric", 33, 2, 69, 2, -1, 1))
sketch1.addConstraint(Sketcher.Constraint("Symmetric", 34, 2, 70, 2, -1, 1))
sketch1.addConstraint(Sketcher.Constraint("Symmetric", 72, 2, 74, 2, -1, 1))
sketch1.addConstraint(Sketcher.Constraint("Symmetric", 13, 3, 24, 3, -2))
sketch1.addConstraint(Sketcher.Constraint("Symmetric", 7, 3, 30, 3, -2))
sketch1.addConstraint(Sketcher.Constraint("Symmetric", 17, 2, 19, 2, -2))
sketch1.addConstraint(Sketcher.Constraint("Symmetric", 16, 2, 20, 2, -2))
sketch1.addConstraint(Sketcher.Constraint("Symmetric", 15, 2, 21, 2, -2))
sketch1.addConstraint(Sketcher.Constraint("Symmetric", 14, 2, 22, 2, -2))
sketch1.addConstraint(Sketcher.Constraint("Symmetric", 11, 2, 25, 2, -2))
sketch1.addConstraint(Sketcher.Constraint("Symmetric", 10, 2, 26, 2, -2))
sketch1.addConstraint(Sketcher.Constraint("Symmetric", 9, 2, 27, 2, -2))
sketch1.addConstraint(Sketcher.Constraint("Symmetric", 8, 2, 28, 2, -2))
sketch1.addConstraint(Sketcher.Constraint("Symmetric", 5, 2, 31, 2, -2))
sketch1.addConstraint(Sketcher.Constraint("Symmetric", 4, 2, 32, 2, -2))
sketch1.addConstraint(Sketcher.Constraint("Symmetric", 3, 2, 33, 2, -2))
sketch1.addConstraint(Sketcher.Constraint("Symmetric", 2, 2, 34, 2, -2))
sketch1.addConstraint(Sketcher.Constraint("Symmetric", 1, 2, 35, 2, -2))
sketch1.addConstraint(Sketcher.Constraint("PointOnObject", 0, 2, -1))
sketch1.addConstraint(Sketcher.Constraint("PointOnObject", 18, 2, -2))
sketch1.addConstraint(Sketcher.Constraint("PointOnObject", 36, 2, -1))
sketch1.addConstraint(Sketcher.Constraint("PointOnObject", 54, 2, -2))
sketch1.addConstraint(Sketcher.Constraint("Parallel", 3, 4))
sketch1.addConstraint(Sketcher.Constraint("Parallel", 15, 16))
sketch1.addConstraint(Sketcher.Constraint("Perpendicular", 2, 20))
sketch1.addConstraint(Sketcher.Constraint("Perpendicular", 4, 21))
sketch1.addConstraint(Sketcher.Constraint("Perpendicular", 5, 23))
sketch1.addConstraint(Sketcher.Constraint("Perpendicular", 8, 26))
sketch1.addConstraint(Sketcher.Constraint("Perpendicular", 9, 27))
sketch1.addConstraint(Sketcher.Constraint("Perpendicular", 11, 29))
sketch1.addConstraint(Sketcher.Constraint("Perpendicular", 14, 32))
sketch1.addConstraint(Sketcher.Constraint("Perpendicular", 23, 41))
sketch1.addConstraint(Sketcher.Constraint("Perpendicular", 29, 47))
sketch1.addConstraint(Sketcher.Constraint("Perpendicular", 35, 53))
sketch1.addConstraint(Sketcher.Constraint("Perpendicular", 41, 59))
sketch1.addConstraint(Sketcher.Constraint("Perpendicular", 47, 65))
sketch1.addConstraint(Sketcher.Constraint("Perpendicular", 53, 71))
sketch1.addConstraint(Sketcher.Constraint("Horizontal", 24, 3, 43, 3))
sketch1.addConstraint(Sketcher.Constraint("Horizontal", 12, 2, 24, 2))
sketch1.addConstraint(Sketcher.Constraint("Horizontal", 6, 2, 30, 2))
sketch1.addConstraint(Sketcher.Constraint("Horizontal", 48, 2, 60, 2))
sketch1.addConstraint(Sketcher.Constraint("Horizontal", 42, 2, 66, 2))
sketch1.addConstraint(Sketcher.Constraint("Vertical", 6, 3, 25, 3))
sketch1.addConstraint(Sketcher.Constraint("Vertical", 30, 2, 42, 2))
sketch1.addConstraint(Sketcher.Constraint("Vertical", 24, 2, 48, 2))
sketch1.addConstraint(Sketcher.Constraint("Equal", 74, 73))
sketch1.addConstraint(Sketcher.Constraint("Equal", 3, 4))
sketch1.addConstraint(Sketcher.Constraint("Equal", 2, 5))
sketch1.addConstraint(Sketcher.Constraint("Equal", 5, 8))
sketch1.addConstraint(Sketcher.Constraint("Equal", 4, 9))
sketch1.addConstraint(Sketcher.Constraint("Equal", 9, 10))
sketch1.addConstraint(Sketcher.Constraint("Equal", 8, 11))
sketch1.addConstraint(Sketcher.Constraint("Equal", 11, 14))
sketch1.addConstraint(Sketcher.Constraint("Equal", 10, 15))
sketch1.addConstraint(Sketcher.Constraint("Equal", 15, 16))
sketch1.addConstraint(Sketcher.Constraint("Equal", 14, 17))
sketch1.addConstraint(Sketcher.Constraint("Angle", 4, Q("105 deg")))
sketch1.addConstraint(Sketcher.Constraint("DistanceX", 72, 2, 72, 1, Q("0.135 in")))
sketch1.addConstraint(Sketcher.Constraint("DistanceX", -1, 1, 0, 2, Q("0.25 in")))
sketch1.addConstraint(Sketcher.Constraint("DistanceY", -1, 1, 18, 2, Q("0.25 in")))
sketch1.addConstraint(Sketcher.Constraint("Angle", 2, Q("178.250012 deg")))
sketch1.addConstraint(Sketcher.Constraint("Angle", 5, Q("31.750016 deg")))
sketch1.addConstraint(Sketcher.Constraint("Angle", 8, Q("-151.750001 deg")))
sketch1.addConstraint(Sketcher.Constraint("DistanceY", -1, 1, 6, 2, Q("0.125 in")))
sketch1.addConstraint(Sketcher.Constraint("DistanceX", -1, 1, 12, 2, Q("0.125 in")))
sketch1.addConstraint(Sketcher.Constraint("Radius", 0, Q("6.350418 mm")))
sketch1.addConstraint(Sketcher.Constraint("Radius", 6, Q("6.350393 mm")))
sketch1.addConstraint(Sketcher.Constraint("Radius", 7, Q("6.349357 mm")))
sketch1.addConstraint(Sketcher.Constraint("DistanceY", -1, 1, 5, 2, Q("2.6811 mm")))
sketch1.addConstraint(Sketcher.Constraint("DistanceX", -1, 1, 13, 2, Q("2.6811 mm")))
sketch1.addConstraint(Sketcher.Constraint("Distance", 2, Q("1.889168 mm")))
sketch1.addConstraint(Sketcher.Constraint("Distance", 3, Q("0.55547 mm")))
sketch1.addConstraint(Sketcher.Constraint("DistanceX", -1, 1, 3, 2, Q("4.29354 mm")))
sketch1.addConstraint(Sketcher.Constraint("DistanceX", -1, 1, 6, 2, Q("5.499261 mm")))
sketch1.addConstraint(Sketcher.Constraint("DistanceX", -1, 1, 9, 2, Q("3.14309 mm")))
sketch1.addConstraint(Sketcher.Constraint("DistanceY", -1, 1, 9, 2, Q("3.14309 mm")))
sketch1.addConstraint(Sketcher.Constraint("DistanceY", -1, 1, 12, 2, Q("5.499261 mm")))
sketch1.setExpression("Constraints[186]", "Params.sketch1_width")
pad1 = body.newObject("PartDesign::Pad", "Pad")
pad1.Profile = sketch1
pad1.setExpression("Length", "Params.pad1_length")

doc.recompute()
